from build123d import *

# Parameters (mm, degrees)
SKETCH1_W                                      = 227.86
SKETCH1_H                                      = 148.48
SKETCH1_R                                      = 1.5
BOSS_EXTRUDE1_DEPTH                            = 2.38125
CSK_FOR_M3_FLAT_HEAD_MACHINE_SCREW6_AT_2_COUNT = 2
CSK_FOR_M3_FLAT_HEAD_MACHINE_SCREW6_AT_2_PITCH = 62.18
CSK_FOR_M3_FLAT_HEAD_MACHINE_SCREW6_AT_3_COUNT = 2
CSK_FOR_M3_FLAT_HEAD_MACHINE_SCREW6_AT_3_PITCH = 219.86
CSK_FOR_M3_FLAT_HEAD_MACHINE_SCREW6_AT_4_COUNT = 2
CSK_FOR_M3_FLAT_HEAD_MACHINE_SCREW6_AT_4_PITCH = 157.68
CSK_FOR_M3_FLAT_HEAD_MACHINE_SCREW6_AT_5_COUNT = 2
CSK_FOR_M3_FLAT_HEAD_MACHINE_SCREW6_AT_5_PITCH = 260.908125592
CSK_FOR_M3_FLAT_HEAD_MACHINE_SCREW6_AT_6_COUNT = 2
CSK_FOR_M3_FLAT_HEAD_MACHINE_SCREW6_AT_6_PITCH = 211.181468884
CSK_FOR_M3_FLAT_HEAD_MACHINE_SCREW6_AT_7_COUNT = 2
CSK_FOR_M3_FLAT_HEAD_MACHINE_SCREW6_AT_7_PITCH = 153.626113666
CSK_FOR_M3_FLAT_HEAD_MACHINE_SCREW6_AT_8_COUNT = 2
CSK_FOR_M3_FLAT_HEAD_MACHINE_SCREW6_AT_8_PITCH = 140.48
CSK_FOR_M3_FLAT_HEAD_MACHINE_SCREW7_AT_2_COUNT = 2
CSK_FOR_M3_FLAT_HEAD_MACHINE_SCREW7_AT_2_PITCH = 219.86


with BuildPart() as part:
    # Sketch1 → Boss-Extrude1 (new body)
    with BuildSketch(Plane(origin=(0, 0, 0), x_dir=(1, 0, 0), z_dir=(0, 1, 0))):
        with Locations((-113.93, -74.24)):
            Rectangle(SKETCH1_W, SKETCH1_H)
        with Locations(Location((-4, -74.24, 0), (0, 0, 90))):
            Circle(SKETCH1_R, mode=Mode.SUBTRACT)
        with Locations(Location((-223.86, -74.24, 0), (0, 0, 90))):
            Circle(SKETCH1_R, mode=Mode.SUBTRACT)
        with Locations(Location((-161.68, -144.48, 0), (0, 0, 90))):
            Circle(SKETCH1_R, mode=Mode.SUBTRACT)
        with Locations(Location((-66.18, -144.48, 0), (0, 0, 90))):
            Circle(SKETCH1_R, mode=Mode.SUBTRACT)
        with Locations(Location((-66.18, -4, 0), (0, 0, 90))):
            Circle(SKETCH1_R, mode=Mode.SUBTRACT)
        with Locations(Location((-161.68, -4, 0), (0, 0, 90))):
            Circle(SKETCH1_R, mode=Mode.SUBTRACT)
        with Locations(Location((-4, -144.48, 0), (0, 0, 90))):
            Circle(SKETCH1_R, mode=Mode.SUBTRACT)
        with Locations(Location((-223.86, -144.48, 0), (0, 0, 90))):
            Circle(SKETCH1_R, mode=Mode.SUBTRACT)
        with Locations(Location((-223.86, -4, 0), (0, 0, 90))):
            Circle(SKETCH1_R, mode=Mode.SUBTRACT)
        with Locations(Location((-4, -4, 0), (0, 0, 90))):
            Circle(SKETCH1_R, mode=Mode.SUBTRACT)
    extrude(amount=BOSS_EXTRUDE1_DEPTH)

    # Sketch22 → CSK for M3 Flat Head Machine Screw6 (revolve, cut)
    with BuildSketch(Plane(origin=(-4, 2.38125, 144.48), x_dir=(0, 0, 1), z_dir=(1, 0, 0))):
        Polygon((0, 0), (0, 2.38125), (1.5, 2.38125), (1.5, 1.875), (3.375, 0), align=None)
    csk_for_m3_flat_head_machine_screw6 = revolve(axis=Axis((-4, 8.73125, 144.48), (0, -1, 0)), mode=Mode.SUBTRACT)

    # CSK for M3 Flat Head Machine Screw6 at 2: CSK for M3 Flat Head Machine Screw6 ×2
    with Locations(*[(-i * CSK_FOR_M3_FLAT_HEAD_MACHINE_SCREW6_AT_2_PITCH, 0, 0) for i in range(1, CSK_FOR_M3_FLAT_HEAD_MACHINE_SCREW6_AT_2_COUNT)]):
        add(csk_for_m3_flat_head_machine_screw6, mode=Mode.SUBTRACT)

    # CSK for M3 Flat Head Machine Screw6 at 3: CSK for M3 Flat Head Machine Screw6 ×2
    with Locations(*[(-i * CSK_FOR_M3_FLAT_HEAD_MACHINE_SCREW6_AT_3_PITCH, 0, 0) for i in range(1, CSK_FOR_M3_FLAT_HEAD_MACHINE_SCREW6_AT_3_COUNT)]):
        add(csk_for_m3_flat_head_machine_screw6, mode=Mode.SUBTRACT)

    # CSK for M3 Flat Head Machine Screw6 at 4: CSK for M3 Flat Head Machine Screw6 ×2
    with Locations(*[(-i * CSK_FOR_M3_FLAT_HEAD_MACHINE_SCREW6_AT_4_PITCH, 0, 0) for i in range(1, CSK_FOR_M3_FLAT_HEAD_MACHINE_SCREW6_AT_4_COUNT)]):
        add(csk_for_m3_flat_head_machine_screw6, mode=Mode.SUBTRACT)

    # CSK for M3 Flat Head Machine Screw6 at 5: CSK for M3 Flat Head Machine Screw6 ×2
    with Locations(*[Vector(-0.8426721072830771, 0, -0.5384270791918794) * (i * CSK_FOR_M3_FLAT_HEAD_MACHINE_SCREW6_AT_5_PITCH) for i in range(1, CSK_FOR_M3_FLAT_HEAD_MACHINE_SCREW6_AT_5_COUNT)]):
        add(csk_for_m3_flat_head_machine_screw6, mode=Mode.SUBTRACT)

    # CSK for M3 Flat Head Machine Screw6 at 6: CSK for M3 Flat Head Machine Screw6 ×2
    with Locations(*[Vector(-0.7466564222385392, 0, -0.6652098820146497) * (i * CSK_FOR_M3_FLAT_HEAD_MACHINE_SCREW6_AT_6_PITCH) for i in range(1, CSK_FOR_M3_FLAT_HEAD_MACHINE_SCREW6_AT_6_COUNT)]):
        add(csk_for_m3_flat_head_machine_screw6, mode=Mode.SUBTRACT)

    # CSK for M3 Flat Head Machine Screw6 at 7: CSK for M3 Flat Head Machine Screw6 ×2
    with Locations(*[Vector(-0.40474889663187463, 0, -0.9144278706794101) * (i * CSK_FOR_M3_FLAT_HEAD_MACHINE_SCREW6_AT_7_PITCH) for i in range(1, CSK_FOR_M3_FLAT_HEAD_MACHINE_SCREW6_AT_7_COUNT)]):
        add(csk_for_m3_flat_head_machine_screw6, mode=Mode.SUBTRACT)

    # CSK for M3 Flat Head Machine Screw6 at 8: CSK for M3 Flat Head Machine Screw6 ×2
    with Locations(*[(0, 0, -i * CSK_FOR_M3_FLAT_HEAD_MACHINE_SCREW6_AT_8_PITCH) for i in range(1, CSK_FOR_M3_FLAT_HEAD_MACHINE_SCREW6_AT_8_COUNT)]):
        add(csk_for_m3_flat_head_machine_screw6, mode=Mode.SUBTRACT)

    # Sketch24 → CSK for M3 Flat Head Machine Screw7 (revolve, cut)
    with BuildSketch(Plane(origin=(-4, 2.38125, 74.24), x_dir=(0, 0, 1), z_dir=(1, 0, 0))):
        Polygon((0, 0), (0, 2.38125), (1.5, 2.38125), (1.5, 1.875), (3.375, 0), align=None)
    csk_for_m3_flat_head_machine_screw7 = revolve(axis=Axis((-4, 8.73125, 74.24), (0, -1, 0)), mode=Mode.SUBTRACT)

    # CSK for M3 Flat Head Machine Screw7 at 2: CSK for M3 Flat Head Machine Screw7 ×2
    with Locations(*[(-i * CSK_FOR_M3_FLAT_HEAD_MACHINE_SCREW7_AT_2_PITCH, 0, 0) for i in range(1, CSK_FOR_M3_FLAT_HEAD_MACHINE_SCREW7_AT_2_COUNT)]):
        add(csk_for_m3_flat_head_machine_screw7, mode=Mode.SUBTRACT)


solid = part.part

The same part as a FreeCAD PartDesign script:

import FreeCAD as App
import Part
import Sketcher

V = App.Vector
Q = App.Units.Quantity

doc = App.newDocument("Part")
body = doc.addObject("PartDesign::Body", "Body")

# Sketch on XZ plane
sketch1 = doc.addObject("Sketcher::SketchObject", "Sketch")
body.addObject(sketch1)
sketch1.AttachmentSupport = (doc.XZ_Plane, [""])
sketch1.MapMode = "FlatFace"
sketch1.addGeometry([
    Part.LineSegment(V(-227.9, 0, 0), V(-227.9, 148.5, 0)),  # 0
    Part.LineSegment(V(-227.9, 148.5, 0), V(0, 148.5, 0)),  # 1
    Part.LineSegment(V(0, 148.5, 0), V(0, 0, 0)),  # 2
    Part.LineSegment(V(0, 0, 0), V(-227.9, 0, 0)),  # 3
    Part.Circle(V(-223.9, 144.5, 0), V(0, 0, 1), 1.5),  # 4
    Part.Circle(V(-161.7, 144.5, 0), V(0, 0, 1), 1.5),  # 5
    Part.Circle(V(-66.2, 144.5, 0), V(0, 0, 1), 1.5),  # 6
    Part.Circle(V(-4, 144.5, 0), V(0, 0, 1), 1.5),  # 7
    Part.Circle(V(-223.9, 74.2, 0), V(0, 0, 1), 1.5),  # 8
    Part.Circle(V(-223.9, 4, 0), V(0, 0, 1), 1.5),  # 9
    Part.Circle(V(-161.7, 4, 0), V(0, 0, 1), 1.5),  # 10
    Part.Circle(V(-4, 74.2, 0), V(0, 0, 1), 1.5),  # 11
    Part.Circle(V(-66.2, 4, 0), V(0, 0, 1), 1.5),  # 12
    Part.Circle(V(-4, 4, 0), V(0, 0, 1), 1.5),  # 13
], False)
sketch1.addConstraint([
    Sketcher.Constraint("Coincident", 0, 2, 1, 1),
    Sketcher.Constraint("Coincident", 1, 2, 2, 1),
    Sketcher.Constraint("Coincident", 2, 2, 3, 1),
    Sketcher.Constraint("Coincident", 3, 2, 0, 1),
    Sketcher.Constraint("Vertical", 0),
    Sketcher.Constraint("Horizontal", 1),
    Sketcher.Constraint("Vertical", 2),
    Sketcher.Constraint("Horizontal", 3),
    Sketcher.Constraint("Coincident", 2, 2, -1, 1),
    Sketcher.Constraint("Equal", 4, 5),
    Sketcher.Constraint("Equal", 5, 6),
    Sketcher.Constraint("Equal", 6, 7),
    Sketcher.Constraint("Equal", 7, 8),
    Sketcher.Constraint("Equal", 8, 9),
    Sketcher.Constraint("Equal", 9, 10),
    Sketcher.Constraint("Equal", 10, 11),
    Sketcher.Constraint("Equal", 11, 12),
    Sketcher.Constraint("Equal", 12, 13),
    Sketcher.Constraint("Horizontal", 4, 3, 5, 3),
    Sketcher.Constraint("Horizontal", 5, 3, 6, 3),
    Sketcher.Constraint("Horizontal", 6, 3, 7, 3),
    Sketcher.Constraint("Horizontal", 9, 3, 10, 3),
    Sketcher.Constraint("Horizontal", 8, 3, 11, 3),
    Sketcher.Constraint("Horizontal", 10, 3, 12, 3),
    Sketcher.Constraint("Horizontal", 12, 3, 13, 3),
    Sketcher.Constraint("Vertical", 4, 3, 8, 3),
    Sketcher.Constraint("Vertical", 8, 3, 9, 3),
    Sketcher.Constraint("Vertical", 5, 3, 10, 3),
    Sketcher.Constraint("Vertical", 7, 3, 11, 3),
    Sketcher.Constraint("Vertical", 6, 3, 12, 3),
    Sketcher.Constraint("Vertical", 11, 3, 13, 3),
    Sketcher.Constraint("Diameter", 4, 3.0),
    Sketcher.Constraint("DistanceX", 7, 3, -1, 1, 4.0),
    Sketcher.Constraint("DistanceY", -1, 1, 9, 3, 4.0),
    Sketcher.Constraint("DistanceX", 0, 2, 4, 3, 4.0),
    Sketcher.Constraint("DistanceY", 4, 3, 0, 2, 4.0),
    Sketcher.Constraint("DistanceX", 1, 1, 1, 2, 227.86),
    Sketcher.Constraint("DistanceY", 0, 1, 0, 2, 148.48),
    Sketcher.Constraint("DistanceX", 5, 3, 6, 3, 95.5),
    Sketcher.Constraint("DistanceX", 5, 3, -1, 1, 161.68),
    Sketcher.Constraint("DistanceY", -1, 1, 8, 3, 74.24),
])
pad1 = doc.addObject("PartDesign::Pad", "Pad")
body.addObject(pad1)
pad1.Profile = sketch1
pad1.Length = 2.38125
pad1.Reversed = True

# Sketch on YZ plane
sketch2 = doc.addObject("Sketcher::SketchObject", "Sketch001")
body.addObject(sketch2)
sketch2.AttachmentSupport = (doc.YZ_Plane, [""])
sketch2.MapMode = "FlatFace"
sketch2.AttachmentOffset = App.Placement(V(0, 0, -4), App.Rotation())
sketch2.addGeometry([
    Part.LineSegment(V(0, 144.5, 0), V(2.4, 144.5, 0)),  # 0
    Part.LineSegment(V(2.4, 144.5, 0), V(2.4, 147.9, 0)),  # 1
    Part.LineSegment(V(2.4, 147.9, 0), V(0.5, 146, 0)),  # 2
    Part.LineSegment(V(0.5, 146, 0), V(0, 146, 0)),  # 3
    Part.LineSegment(V(0, 146, 0), V(0, 144.5, 0)),  # 4
], False)
sketch2.addGeometry(Part.LineSegment(V(2.4, 144.5, 0), V(0, 144.5, 0)), True)  # axis
sketch2.addConstraint([
    Sketcher.Constraint("Coincident", 0, 2, 1, 1),
    Sketcher.Constraint("Coincident", 1, 2, 2, 1),
    Sketcher.Constraint("Coincident", 2, 2, 3, 1),
    Sketcher.Constraint("Coincident", 3, 2, 4, 1),
    Sketcher.Constraint("Coincident", 4, 2, 0, 1),
    Sketcher.Constraint("Horizontal", 0),
    Sketcher.Constraint("Vertical", 1),
    Sketcher.Constraint("Horizontal", 3),
    Sketcher.Constraint("Vertical", 4),
    Sketcher.Constraint("Horizontal", 5),
    Sketcher.Constraint("Coincident", 5, 1, 0, 2),
    Sketcher.Constraint("PointOnObject", 3, 2, -2),
    Sketcher.Constraint("PointOnObject", 5, 2, -2),
    Sketcher.Constraint("Angle", 2, Q("-135 deg")),
    Sketcher.Constraint("DistanceY", 4, 2, 4, 1, 1.5),
    Sketcher.Constraint("DistanceY", 1, 1, 1, 2, 3.375),
    Sketcher.Constraint("DistanceY", -1, 1, 0, 2, 144.48),
    Sketcher.Constraint("DistanceX", 0, 1, 0, 2, 2.38125),
])
groove = doc.addObject("PartDesign::Groove", "Groove")
body.addObject(groove)
groove.Profile = sketch2
groove.ReferenceAxis = (sketch2, ["Axis0"])
groove.Angle = 360
doc.recompute()

linearpattern = doc.addObject("PartDesign::LinearPattern", "LinearPattern")
body.addObject(linearpattern)
linearpattern.Originals = [groove]
linearpattern.Direction = (doc.X_Axis, [""])
linearpattern.Mode = "offset"
linearpattern.Offset = 62.18
linearpattern.Occurrences = 2
linearpattern.Reversed = True
body.Tip = linearpattern
doc.recompute()

linearpattern2 = doc.addObject("PartDesign::LinearPattern", "LinearPattern001")
body.addObject(linearpattern2)
linearpattern2.Originals = [groove]
linearpattern2.Direction = (doc.X_Axis, [""])
linearpattern2.Mode = "offset"
linearpattern2.Offset = 219.86
linearpattern2.Occurrences = 2
linearpattern2.Reversed = True
body.Tip = linearpattern2
doc.recompute()

linearpattern3 = doc.addObject("PartDesign::LinearPattern", "LinearPattern002")
body.addObject(linearpattern3)
linearpattern3.Originals = [groove]
linearpattern3.Direction = (doc.X_Axis, [""])
linearpattern3.Mode = "offset"
linearpattern3.Offset = 157.68
linearpattern3.Occurrences = 2
linearpattern3.Reversed = True
body.Tip = linearpattern3
doc.recompute()

datumline = doc.addObject("PartDesign::Line", "DatumLine")
body.addObject(datumline)
datumline.Placement = App.Placement(V(0, 0, 0), App.Rotation(V(0, 0, 1), V(-0.842672107, 0, -0.538427079)))
linearpattern4 = doc.addObject("PartDesign::LinearPattern", "LinearPattern003")
body.addObject(linearpattern4)
linearpattern4.Originals = [groove]
linearpattern4.Direction = (datumline, [""])
linearpattern4.Mode = "offset"
linearpattern4.Offset = 260.908126
linearpattern4.Occurrences = 2
body.Tip = linearpattern4
doc.recompute()

datumline2 = doc.addObject("PartDesign::Line", "DatumLine001")
body.addObject(datumline2)
datumline2.Placement = App.Placement(V(0, 0, 0), App.Rotation(V(0, 0, 1), V(-0.746656422, 0, -0.665209882)))
linearpattern5 = doc.addObject("PartDesign::LinearPattern", "LinearPattern004")
body.addObject(linearpattern5)
linearpattern5.Originals = [groove]
linearpattern5.Direction = (datumline2, [""])
linearpattern5.Mode = "offset"
linearpattern5.Offset = 211.181469
linearpattern5.Occurrences = 2
body.Tip = linearpattern5
doc.recompute()

datumline3 = doc.addObject("PartDesign::Line", "DatumLine002")
body.addObject(datumline3)
datumline3.Placement = App.Placement(V(0, 0, 0), App.Rotation(V(0, 0, 1), V(-0.404748897, 0, -0.914427871)))
linearpattern6 = doc.addObject("PartDesign::LinearPattern", "LinearPattern005")
body.addObject(linearpattern6)
linearpattern6.Originals = [groove]
linearpattern6.Direction = (datumline3, [""])
linearpattern6.Mode = "offset"
linearpattern6.Offset = 153.626114
linearpattern6.Occurrences = 2
body.Tip = linearpattern6
doc.recompute()

linearpattern7 = doc.addObject("PartDesign::LinearPattern", "LinearPattern006")
body.addObject(linearpattern7)
linearpattern7.Originals = [groove]
linearpattern7.Direction = (doc.Z_Axis, [""])
linearpattern7.Mode = "offset"
linearpattern7.Offset = 140.48
linearpattern7.Occurrences = 2
linearpattern7.Reversed = True
body.Tip = linearpattern7

# Sketch on YZ plane
sketch3 = doc.addObject("Sketcher::SketchObject", "Sketch002")
body.addObject(sketch3)
sketch3.AttachmentSupport = (doc.YZ_Plane, [""])
sketch3.MapMode = "FlatFace"
sketch3.AttachmentOffset = App.Placement(V(0, 0, -4), App.Rotation())
sketch3.addGeometry([
    Part.LineSegment(V(0, 74.2, 0), V(2.4, 74.2, 0)),  # 0
    Part.LineSegment(V(2.4, 74.2, 0), V(2.4, 77.6, 0)),  # 1
    Part.LineSegment(V(2.4, 77.6, 0), V(0.5, 75.7, 0)),  # 2
    Part.LineSegment(V(0.5, 75.7, 0), V(0, 75.7, 0)),  # 3
    Part.LineSegment(V(0, 75.7, 0), V(0, 74.2, 0)),  # 4
], False)
sketch3.addGeometry(Part.LineSegment(V(2.4, 74.2, 0), V(0, 74.2, 0)), True)  # axis
sketch3.addConstraint([
    Sketcher.Constraint("Coincident", 0, 2, 1, 1),
    Sketcher.Constraint("Coincident", 1, 2, 2, 1),
    Sketcher.Constraint("Coincident", 2, 2, 3, 1),
    Sketcher.Constraint("Coincident", 3, 2, 4, 1),
    Sketcher.Constraint("Coincident", 4, 2, 0, 1),
    Sketcher.Constraint("Horizontal", 0),
    Sketcher.Constraint("Vertical", 1),
    Sketcher.Constraint("Horizontal", 3),
    Sketcher.Constraint("Vertical", 4),
    Sketcher.Constraint("Horizontal", 5),
    Sketcher.Constraint("Coincident", 5, 1, 0, 2),
    Sketcher.Constraint("PointOnObject", 3, 2, -2),
    Sketcher.Constraint("PointOnObject", 5, 2, -2),
    Sketcher.Constraint("Angle", 2, Q("-135 deg")),
    Sketcher.Constraint("DistanceY", 4, 2, 4, 1, 1.5),
    Sketcher.Constraint("DistanceY", 1, 1, 1, 2, 3.375),
    Sketcher.Constraint("DistanceY", -1, 1, 0, 2, 74.24),
    Sketcher.Constraint("DistanceX", 0, 1, 0, 2, 2.38125),
])
groove2 = doc.addObject("PartDesign::Groove", "Groove001")
body.addObject(groove2)
groove2.Profile = sketch3
groove2.ReferenceAxis = (sketch3, ["Axis0"])
groove2.Angle = 360
doc.recompute()

linearpattern8 = doc.addObject("PartDesign::LinearPattern", "LinearPattern007")
body.addObject(linearpattern8)
linearpattern8.Originals = [groove2]
linearpattern8.Direction = (doc.X_Axis, [""])
linearpattern8.Mode = "offset"
linearpattern8.Offset = 219.86
linearpattern8.Occurrences = 2
linearpattern8.Reversed = True
body.Tip = linearpattern8

doc.recompute()
